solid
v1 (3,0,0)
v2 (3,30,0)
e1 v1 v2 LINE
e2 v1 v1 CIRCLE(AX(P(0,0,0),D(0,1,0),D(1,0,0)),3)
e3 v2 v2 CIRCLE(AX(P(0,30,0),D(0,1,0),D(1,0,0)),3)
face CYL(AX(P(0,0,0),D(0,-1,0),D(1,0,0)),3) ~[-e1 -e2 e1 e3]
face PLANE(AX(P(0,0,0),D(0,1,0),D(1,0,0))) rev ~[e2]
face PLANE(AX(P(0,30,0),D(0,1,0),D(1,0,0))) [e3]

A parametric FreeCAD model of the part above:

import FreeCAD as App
import Part
import Sketcher
from FreeCAD import Vector
Q = App.Units.Quantity

doc = App.newDocument("Part")
body = doc.addObject("PartDesign::Body", "Body")

# Sketch on XZ plane
sketch1 = doc.addObject("Sketcher::SketchObject", "Sketch")
body.addObject(sketch1)
sketch1.AttachmentSupport = (doc.XZ_Plane, [""])
sketch1.MapMode = "FlatFace"
sketch1.addGeometry(Part.Circle(Vector(0, 0, 0), Vector(0, 0, 1), 3), False)
sketch1.addConstraint(Sketcher.Constraint("Coincident", 0, 3, -1, 1))
sketch1.addConstraint(Sketcher.Constraint("Diameter", 0, Q("6 mm")))
pad1 = doc.addObject("PartDesign::Pad", "Pad")
body.addObject(pad1)
pad1.Profile = sketch1
pad1.Length = 30
pad1.Reversed = True

doc.recompute()
